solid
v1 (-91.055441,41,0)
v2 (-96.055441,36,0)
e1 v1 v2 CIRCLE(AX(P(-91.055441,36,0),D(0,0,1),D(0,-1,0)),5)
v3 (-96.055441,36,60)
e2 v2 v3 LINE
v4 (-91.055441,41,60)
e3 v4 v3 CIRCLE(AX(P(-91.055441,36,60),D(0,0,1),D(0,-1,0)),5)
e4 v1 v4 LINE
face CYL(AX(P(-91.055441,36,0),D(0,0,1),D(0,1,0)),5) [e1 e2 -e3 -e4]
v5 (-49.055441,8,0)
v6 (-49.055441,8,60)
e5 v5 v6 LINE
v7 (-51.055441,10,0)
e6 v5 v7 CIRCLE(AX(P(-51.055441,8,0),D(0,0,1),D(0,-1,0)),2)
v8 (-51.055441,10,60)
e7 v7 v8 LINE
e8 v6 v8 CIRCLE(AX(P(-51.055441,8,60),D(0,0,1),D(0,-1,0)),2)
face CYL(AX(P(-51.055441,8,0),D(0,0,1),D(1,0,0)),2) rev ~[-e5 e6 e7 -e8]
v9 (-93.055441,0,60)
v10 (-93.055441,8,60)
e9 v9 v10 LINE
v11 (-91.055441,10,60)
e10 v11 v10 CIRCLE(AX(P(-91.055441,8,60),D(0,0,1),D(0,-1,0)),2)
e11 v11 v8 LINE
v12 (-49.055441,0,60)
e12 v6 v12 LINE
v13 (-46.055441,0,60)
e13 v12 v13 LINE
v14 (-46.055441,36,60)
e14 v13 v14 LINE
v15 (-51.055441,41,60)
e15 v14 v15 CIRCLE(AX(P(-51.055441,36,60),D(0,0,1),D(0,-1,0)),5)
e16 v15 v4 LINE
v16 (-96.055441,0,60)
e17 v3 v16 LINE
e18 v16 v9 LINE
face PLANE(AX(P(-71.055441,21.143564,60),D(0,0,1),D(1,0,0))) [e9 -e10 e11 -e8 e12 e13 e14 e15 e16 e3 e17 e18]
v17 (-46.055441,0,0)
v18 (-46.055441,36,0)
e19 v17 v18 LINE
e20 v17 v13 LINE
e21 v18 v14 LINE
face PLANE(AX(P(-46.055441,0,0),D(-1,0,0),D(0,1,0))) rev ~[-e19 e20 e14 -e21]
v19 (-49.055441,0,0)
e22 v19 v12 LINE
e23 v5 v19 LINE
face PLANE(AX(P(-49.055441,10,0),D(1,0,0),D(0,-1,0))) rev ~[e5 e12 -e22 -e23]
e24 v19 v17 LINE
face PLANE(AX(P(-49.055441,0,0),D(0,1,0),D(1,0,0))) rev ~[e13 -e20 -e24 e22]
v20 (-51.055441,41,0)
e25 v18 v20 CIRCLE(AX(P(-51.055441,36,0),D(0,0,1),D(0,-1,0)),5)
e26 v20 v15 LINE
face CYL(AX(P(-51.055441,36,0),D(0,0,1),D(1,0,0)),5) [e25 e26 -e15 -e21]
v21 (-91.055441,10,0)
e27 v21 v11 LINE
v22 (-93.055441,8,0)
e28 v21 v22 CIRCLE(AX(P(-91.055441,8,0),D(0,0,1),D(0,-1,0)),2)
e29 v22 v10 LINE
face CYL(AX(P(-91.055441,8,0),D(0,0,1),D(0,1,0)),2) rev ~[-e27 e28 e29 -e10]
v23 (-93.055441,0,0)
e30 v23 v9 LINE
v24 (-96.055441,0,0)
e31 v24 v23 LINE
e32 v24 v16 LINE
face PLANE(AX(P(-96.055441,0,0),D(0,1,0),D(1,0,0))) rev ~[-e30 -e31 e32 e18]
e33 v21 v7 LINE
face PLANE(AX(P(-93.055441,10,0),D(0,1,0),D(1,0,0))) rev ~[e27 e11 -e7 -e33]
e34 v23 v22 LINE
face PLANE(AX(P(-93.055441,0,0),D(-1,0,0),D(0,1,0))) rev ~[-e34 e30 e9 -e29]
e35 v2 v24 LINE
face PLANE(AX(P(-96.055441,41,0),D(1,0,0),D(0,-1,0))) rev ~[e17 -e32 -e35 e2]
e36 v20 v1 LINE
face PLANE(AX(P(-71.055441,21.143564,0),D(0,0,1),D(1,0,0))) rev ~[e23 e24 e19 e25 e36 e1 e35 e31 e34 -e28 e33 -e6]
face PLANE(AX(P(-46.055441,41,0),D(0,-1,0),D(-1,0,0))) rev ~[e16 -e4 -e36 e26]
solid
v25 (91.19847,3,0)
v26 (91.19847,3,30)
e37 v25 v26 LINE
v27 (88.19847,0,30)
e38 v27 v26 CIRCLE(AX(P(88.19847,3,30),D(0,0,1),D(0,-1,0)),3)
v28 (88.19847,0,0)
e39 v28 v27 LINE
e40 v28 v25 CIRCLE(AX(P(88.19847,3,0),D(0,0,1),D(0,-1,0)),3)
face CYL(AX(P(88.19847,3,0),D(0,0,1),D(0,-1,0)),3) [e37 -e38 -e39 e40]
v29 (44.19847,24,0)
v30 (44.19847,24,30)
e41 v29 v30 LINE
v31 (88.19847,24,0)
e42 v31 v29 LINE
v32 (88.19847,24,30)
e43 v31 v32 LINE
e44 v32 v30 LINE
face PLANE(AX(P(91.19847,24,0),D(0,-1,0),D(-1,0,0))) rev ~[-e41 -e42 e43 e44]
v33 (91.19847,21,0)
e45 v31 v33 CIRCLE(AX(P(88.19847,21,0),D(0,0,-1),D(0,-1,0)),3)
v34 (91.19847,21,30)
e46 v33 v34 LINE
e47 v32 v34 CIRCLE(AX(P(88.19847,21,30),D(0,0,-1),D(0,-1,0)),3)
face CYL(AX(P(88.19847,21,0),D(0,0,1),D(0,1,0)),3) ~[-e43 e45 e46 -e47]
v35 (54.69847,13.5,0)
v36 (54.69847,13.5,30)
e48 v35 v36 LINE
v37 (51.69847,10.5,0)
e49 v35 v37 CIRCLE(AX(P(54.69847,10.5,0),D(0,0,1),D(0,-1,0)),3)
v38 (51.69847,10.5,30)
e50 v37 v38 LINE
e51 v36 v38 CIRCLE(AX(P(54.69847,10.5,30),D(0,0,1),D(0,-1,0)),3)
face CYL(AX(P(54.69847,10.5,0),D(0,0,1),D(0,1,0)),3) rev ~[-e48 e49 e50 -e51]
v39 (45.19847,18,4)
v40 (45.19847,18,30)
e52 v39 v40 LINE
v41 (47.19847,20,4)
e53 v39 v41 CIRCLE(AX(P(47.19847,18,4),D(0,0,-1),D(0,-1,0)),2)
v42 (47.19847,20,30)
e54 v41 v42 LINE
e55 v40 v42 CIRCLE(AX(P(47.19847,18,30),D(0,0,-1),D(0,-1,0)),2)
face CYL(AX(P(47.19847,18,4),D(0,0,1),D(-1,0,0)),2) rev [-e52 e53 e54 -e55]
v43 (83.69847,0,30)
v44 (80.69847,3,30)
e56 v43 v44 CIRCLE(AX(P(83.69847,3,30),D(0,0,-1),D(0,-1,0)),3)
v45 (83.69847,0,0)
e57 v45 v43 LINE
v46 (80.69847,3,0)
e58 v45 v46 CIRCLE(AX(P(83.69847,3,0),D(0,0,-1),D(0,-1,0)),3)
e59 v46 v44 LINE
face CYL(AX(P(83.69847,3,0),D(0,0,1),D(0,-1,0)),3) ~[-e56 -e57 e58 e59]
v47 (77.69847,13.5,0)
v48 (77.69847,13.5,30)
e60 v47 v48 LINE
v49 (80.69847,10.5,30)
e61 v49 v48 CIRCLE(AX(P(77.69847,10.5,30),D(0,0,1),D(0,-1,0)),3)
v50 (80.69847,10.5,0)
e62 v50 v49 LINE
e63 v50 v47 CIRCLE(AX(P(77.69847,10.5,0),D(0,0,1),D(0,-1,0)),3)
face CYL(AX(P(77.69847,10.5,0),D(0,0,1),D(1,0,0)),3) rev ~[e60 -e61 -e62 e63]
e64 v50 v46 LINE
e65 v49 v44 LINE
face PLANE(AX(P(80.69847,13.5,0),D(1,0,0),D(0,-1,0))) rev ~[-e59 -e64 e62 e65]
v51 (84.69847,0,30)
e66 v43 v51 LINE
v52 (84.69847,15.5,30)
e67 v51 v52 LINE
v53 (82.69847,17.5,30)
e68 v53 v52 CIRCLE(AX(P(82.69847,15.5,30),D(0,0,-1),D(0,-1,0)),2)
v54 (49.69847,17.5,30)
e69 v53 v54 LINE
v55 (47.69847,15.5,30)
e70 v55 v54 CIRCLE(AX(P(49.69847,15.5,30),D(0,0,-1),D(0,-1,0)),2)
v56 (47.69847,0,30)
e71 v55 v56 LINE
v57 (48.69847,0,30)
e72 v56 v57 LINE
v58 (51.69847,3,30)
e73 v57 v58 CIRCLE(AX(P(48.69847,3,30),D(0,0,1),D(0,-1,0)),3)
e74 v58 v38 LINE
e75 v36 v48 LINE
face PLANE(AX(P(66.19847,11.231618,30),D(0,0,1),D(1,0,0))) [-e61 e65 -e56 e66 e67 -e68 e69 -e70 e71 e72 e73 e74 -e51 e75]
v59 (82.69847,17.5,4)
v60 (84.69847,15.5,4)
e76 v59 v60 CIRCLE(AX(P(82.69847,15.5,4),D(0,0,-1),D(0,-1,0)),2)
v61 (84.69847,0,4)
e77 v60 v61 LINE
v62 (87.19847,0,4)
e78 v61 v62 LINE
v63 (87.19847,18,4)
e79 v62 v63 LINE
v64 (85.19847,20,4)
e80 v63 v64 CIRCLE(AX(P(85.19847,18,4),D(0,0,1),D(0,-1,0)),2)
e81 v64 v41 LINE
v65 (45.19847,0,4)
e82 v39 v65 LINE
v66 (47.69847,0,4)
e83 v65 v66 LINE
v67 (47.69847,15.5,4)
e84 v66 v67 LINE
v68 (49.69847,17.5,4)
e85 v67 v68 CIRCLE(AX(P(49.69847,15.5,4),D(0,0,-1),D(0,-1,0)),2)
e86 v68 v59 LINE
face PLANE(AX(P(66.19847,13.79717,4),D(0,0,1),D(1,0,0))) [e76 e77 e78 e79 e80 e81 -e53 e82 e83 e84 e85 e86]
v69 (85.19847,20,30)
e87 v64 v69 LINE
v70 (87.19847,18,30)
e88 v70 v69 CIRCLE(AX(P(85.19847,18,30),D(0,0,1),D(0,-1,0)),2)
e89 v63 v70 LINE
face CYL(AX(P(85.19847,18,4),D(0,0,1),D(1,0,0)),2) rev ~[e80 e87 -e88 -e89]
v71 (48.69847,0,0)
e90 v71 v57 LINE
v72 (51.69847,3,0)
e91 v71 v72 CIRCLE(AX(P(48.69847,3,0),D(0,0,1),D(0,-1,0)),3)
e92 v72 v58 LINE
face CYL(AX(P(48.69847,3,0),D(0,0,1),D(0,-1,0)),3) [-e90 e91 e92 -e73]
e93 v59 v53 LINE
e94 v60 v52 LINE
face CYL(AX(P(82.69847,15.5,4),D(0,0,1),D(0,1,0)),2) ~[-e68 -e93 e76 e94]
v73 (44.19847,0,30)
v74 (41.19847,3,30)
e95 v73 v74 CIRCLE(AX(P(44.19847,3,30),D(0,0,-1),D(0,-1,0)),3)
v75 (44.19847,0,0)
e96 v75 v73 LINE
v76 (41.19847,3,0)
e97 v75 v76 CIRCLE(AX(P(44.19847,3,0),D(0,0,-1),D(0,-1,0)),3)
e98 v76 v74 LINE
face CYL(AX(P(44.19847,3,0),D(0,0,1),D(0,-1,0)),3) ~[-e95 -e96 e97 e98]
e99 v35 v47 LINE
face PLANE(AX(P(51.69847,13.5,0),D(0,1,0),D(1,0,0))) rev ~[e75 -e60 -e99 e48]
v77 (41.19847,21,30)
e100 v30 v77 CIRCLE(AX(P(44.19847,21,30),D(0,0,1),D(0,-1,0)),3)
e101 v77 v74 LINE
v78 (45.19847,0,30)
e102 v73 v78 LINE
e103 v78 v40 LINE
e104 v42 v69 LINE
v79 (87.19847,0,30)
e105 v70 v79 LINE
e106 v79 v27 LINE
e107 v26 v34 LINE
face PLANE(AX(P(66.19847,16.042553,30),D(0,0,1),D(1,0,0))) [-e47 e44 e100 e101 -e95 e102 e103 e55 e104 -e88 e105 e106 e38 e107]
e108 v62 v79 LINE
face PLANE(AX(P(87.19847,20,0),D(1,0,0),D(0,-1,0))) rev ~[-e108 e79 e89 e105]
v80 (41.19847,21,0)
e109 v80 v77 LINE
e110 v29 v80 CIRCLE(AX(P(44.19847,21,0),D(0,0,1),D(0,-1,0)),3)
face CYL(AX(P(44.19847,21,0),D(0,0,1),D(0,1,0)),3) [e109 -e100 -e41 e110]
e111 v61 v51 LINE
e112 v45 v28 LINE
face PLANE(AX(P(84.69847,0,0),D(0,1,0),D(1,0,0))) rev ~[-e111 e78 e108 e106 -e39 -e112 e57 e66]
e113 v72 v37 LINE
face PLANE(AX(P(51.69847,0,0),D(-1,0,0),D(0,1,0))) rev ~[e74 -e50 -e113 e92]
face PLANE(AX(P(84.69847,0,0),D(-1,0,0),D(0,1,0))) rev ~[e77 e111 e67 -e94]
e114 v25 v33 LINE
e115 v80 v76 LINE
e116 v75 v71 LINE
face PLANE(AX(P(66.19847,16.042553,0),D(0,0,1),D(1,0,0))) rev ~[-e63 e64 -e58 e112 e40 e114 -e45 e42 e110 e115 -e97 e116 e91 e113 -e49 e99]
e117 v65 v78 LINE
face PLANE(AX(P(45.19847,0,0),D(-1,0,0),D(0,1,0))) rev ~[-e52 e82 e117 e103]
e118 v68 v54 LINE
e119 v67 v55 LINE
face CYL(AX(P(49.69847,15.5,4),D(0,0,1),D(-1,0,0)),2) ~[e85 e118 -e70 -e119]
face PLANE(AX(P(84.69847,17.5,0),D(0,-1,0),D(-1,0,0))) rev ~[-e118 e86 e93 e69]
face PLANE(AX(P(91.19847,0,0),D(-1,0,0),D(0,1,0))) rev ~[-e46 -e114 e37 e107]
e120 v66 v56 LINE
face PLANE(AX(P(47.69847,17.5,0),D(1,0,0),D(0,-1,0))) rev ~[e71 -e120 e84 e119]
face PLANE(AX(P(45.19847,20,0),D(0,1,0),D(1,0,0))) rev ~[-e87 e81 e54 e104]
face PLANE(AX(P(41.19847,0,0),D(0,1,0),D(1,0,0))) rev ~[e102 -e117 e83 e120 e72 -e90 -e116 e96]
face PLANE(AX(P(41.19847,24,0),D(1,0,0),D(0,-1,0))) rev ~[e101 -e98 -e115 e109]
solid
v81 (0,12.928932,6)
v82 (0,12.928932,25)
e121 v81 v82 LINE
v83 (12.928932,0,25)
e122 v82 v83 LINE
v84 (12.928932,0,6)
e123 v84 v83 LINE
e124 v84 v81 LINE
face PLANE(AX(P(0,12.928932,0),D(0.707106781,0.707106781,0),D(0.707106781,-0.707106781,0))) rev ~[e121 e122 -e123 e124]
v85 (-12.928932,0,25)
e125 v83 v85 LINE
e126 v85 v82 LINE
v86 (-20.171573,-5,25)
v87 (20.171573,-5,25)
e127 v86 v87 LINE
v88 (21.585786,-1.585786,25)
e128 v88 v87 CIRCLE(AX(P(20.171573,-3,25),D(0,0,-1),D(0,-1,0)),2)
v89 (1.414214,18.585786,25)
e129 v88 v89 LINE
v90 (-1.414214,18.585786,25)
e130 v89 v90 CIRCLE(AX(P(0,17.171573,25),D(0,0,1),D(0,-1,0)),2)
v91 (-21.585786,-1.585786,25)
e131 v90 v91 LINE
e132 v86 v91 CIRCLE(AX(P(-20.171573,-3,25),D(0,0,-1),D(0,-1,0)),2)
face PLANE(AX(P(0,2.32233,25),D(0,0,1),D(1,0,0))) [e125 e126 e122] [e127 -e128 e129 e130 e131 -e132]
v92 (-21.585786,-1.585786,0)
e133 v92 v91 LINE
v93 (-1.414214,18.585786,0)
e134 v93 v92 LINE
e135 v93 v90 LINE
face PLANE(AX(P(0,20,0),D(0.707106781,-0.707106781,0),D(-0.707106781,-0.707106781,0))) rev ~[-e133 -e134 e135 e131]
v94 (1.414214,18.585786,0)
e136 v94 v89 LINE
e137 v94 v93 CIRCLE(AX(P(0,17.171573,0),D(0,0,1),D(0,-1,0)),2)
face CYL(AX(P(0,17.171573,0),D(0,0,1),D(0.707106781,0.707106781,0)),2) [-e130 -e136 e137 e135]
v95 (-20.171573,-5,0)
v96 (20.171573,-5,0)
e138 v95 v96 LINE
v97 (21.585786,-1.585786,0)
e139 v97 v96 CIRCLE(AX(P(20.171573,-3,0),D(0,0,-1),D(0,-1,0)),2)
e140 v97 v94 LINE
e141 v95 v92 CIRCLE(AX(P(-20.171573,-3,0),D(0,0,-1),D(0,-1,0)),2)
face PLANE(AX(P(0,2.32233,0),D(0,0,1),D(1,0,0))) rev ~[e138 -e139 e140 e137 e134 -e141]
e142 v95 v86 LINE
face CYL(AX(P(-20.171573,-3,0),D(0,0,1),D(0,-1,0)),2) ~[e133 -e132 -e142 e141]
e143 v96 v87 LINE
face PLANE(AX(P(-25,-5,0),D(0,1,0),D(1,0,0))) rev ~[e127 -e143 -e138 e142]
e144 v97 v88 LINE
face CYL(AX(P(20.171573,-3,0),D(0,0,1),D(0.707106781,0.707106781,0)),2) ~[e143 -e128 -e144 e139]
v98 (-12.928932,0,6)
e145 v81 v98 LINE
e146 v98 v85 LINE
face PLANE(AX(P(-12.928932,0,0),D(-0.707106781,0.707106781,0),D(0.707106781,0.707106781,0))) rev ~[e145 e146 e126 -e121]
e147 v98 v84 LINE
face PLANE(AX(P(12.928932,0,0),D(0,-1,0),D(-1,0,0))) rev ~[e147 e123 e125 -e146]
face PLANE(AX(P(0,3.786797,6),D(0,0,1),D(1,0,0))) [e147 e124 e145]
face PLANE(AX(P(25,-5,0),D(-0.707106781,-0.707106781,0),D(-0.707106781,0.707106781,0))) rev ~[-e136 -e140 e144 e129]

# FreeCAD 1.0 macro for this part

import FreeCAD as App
import Part
import Sketcher

V = App.Vector


def edges_at(feature, points):
    """Names of the edges that pass closest to the given points."""
    edges = feature.Shape.Edges
    near = lambda p: min(range(len(edges)), key=lambda i: edges[i].distToShape(Part.Vertex(*p))[0])
    return sorted({f"Edge{near(p) + 1}" for p in points})


def add_polygon(sketch, points):
    """Adds a closed chain of lines whose ends are joined by coincident constraints."""
    first, n = sketch.GeometryCount, len(points)
    for a, b in zip(points, points[1:] + points[:1]):
        sketch.addGeometry(Part.LineSegment(App.Vector(*a, 0), App.Vector(*b, 0)), False)
    for i in range(n):
        sketch.addConstraint(Sketcher.Constraint("Coincident", first + i, 2, first + (i + 1) % n, 1))

doc = App.newDocument("Part")
params = doc.addObject("Spreadsheet::Sheet", "Params")
for row, (alias, value) in enumerate([
    ("pad1_length", "6 mm"),
    ("sketch2_width", "50 mm"),
    ("pad2_length", "25 mm"),
    ("fillet_radius", "2 mm"),
    ("sketch3_width", "3 mm"),
    ("sketch3_width2", "50 mm"),
    ("sketch3_height", "41 mm"),
    ("sketch3_height2", "10 mm"),
    ("pad3_length", "60 mm"),
    ("fillet2_radius", "5 mm"),
    ("fillet3_radius", "2 mm"),
    ("sketch4_width", "42 mm"),
    ("sketch4_width2", "37 mm"),
    ("sketch4_height", "20 mm"),
    ("sketch4_height2", "17.5 mm"),
    ("pad4_length", "4 mm"),
    ("sketch5_width", "42 mm"),
    ("sketch5_width2", "4 mm"),
    ("sketch5_width3", "29 mm"),
    ("sketch5_height", "20 mm"),
    ("sketch5_height2", "24 mm"),
    ("pad5_length", "30 mm"),
    ("fillet4_radius", "3 mm"),
    ("fillet5_radius", "2 mm"),
], start=1):
    params.set(f"A{row}", alias)
    params.set(f"B{row}", "=" + value)
    params.setAlias(f"B{row}", alias)

body = doc.addObject("PartDesign::Body", "Body")

sketch1 = body.newObject("Sketcher::SketchObject", "Sketch")
sketch1.AttachmentSupport = (doc.getObject("XY_Plane"), [""])
sketch1.MapMode = "FlatFace"
add_polygon(sketch1, [(13, 0), (0, 13), (-13, 0)])
sketch1.addConstraint(Sketcher.Constraint("Horizontal", 2))
sketch1.addConstraint(Sketcher.Constraint("Symmetric", 1, 2, 2, 2, -1, 1))
sketch1.addConstraint(Sketcher.Constraint("PointOnObject", 0, 2, -2))
sketch1.addConstraint(Sketcher.Constraint("Perpendicular", 0, 1))
sketch1.addConstraint(Sketcher.Constraint("Distance", 0, 18.284271))
pad1 = body.newObject("PartDesign::Pad", "Pad")
pad1.Profile = sketch1
pad1.setExpression("Length", "Params.pad1_length")

sketch2 = body.newObject("Sketcher::SketchObject", "Sketch001")
sketch2.AttachmentSupport = (doc.getObject("XY_Plane"), [""])
sketch2.MapMode = "FlatFace"
add_polygon(sketch2, [(25, -5), (0, 20), (-25, -5)])
add_polygon(sketch2, [(13, 0), (-13, 0), (0, 13)])
sketch2.addConstraint(Sketcher.Constraint("Horizontal", 2))
sketch2.addConstraint(Sketcher.Constraint("Horizontal", 3))
sketch2.addConstraint(Sketcher.Constraint("Symmetric", 3, 2, 5, 2, -1, 1))
sketch2.addConstraint(Sketcher.Constraint("PointOnObject", 0, 2, -2))
sketch2.addConstraint(Sketcher.Constraint("PointOnObject", 4, 2, -2))
sketch2.addConstraint(Sketcher.Constraint("Perpendicular", 0, 1))
sketch2.addConstraint(Sketcher.Constraint("Parallel", 1, 4))
sketch2.addConstraint(Sketcher.Constraint("Perpendicular", 4, 5))
sketch2.addConstraint(Sketcher.Constraint("DistanceX", 2, 1, 2, 2, 50.0))
sketch2.addConstraint(Sketcher.Constraint("DistanceY", -1, 1, 0, 2, 20.0))
sketch2.addConstraint(Sketcher.Constraint("Distance", 4, 18.284271))
sketch2.setExpression("Constraints[14]", "Params.sketch2_width")
pad2 = body.newObject("PartDesign::Pad", "Pad001")
pad2.Profile = sketch2
pad2.setExpression("Length", "Params.pad2_length")
doc.recompute()

fillet = body.newObject("PartDesign::Fillet", "Fillet")
fillet.Base = (pad2, edges_at(pad2, [(-25, -5, 12.5), (25, -5, 12.5), (0, 20, 12.5)]))
fillet.setExpression("Radius", "Params.fillet_radius")
body2 = doc.addObject("PartDesign::Body", "Body001")

sketch3 = body2.newObject("Sketcher::SketchObject", "Sketch002")
sketch3.AttachmentSupport = (doc.getObject("XY_Plane001"), [""])
sketch3.MapMode = "FlatFace"
add_polygon(sketch3, [(-49.1, 0), (-46.1, 0), (-46.1, 41), (-96.1, 41), (-96.1, 0), (-93.1, 0), (-93.1, 10), (-49.1, 10)])
sketch3.addConstraint(Sketcher.Constraint("Horizontal", 0))
sketch3.addConstraint(Sketcher.Constraint("Vertical", 1))
sketch3.addConstraint(Sketcher.Constraint("Horizontal", 2))
sketch3.addConstraint(Sketcher.Constraint("Vertical", 3))
sketch3.addConstraint(Sketcher.Constraint("Horizontal", 4))
sketch3.addConstraint(Sketcher.Constraint("Vertical", 5))
sketch3.addConstraint(Sketcher.Constraint("Horizontal", 6))
sketch3.addConstraint(Sketcher.Constraint("Vertical", 7))
sketch3.addConstraint(Sketcher.Constraint("PointOnObject", 0, 2, -1))
sketch3.addConstraint(Sketcher.Constraint("PointOnObject", 3, 2, -1))
sketch3.addConstraint(Sketcher.Constraint("Equal", 0, 4))
sketch3.addConstraint(Sketcher.Constraint("DistanceX", 0, 1, 0, 2, 3.0))
sketch3.addConstraint(Sketcher.Constraint("DistanceX", 2, 2, 2, 1, 50.0))
sketch3.addConstraint(Sketcher.Constraint("DistanceY", 1, 1, 1, 2, 41.0))
sketch3.addConstraint(Sketcher.Constraint("DistanceY", 5, 1, 5, 2, 10.0))
sketch3.addConstraint(Sketcher.Constraint("DistanceX", 0, 2, -1, 1, 46.055441))
sketch3.setExpression("Constraints[19]", "Params.sketch3_width")
sketch3.setExpression("Constraints[20]", "Params.sketch3_width2")
sketch3.setExpression("Constraints[21]", "Params.sketch3_height")
sketch3.setExpression("Constraints[22]", "Params.sketch3_height2")
pad3 = body2.newObject("PartDesign::Pad", "Pad002")
pad3.Profile = sketch3
pad3.setExpression("Length", "Params.pad3_length")
doc.recompute()

fillet2 = body2.newObject("PartDesign::Fillet", "Fillet001")
fillet2.Base = (pad3, edges_at(pad3, [(-96.055, 41, 30), (-46.055, 41, 30)]))
fillet2.setExpression("Radius", "Params.fillet2_radius")
doc.recompute()

fillet3 = body2.newObject("PartDesign::Fillet", "Fillet002")
fillet3.Base = (fillet2, edges_at(fillet2, [(-93.055, 10, 30), (-49.055, 10, 30)]))
fillet3.setExpression("Radius", "Params.fillet3_radius")
body3 = doc.addObject("PartDesign::Body", "Body002")

sketch4 = body3.newObject("Sketcher::SketchObject", "Sketch003")
sketch4.AttachmentSupport = (doc.getObject("XY_Plane002"), [""])
sketch4.MapMode = "FlatFace"
add_polygon(sketch4, [(87.2, 20), (45.2, 20), (45.2, 0), (47.7, 0), (47.7, 17.5), (84.7, 17.5), (84.7, 0), (87.2, 0)])
sketch4.addConstraint(Sketcher.Constraint("Horizontal", 0))
sketch4.addConstraint(Sketcher.Constraint("Vertical", 1))
sketch4.addConstraint(Sketcher.Constraint("Horizontal", 2))
sketch4.addConstraint(Sketcher.Constraint("Vertical", 3))
sketch4.addConstraint(Sketcher.Constraint("Horizontal", 4))
sketch4.addConstraint(Sketcher.Constraint("Vertical", 5))
sketch4.addConstraint(Sketcher.Constraint("Horizontal", 6))
sketch4.addConstraint(Sketcher.Constraint("Vertical", 7))
sketch4.addConstraint(Sketcher.Constraint("PointOnObject", 1, 2, -1))
sketch4.addConstraint(Sketcher.Constraint("PointOnObject", 5, 2, -1))
sketch4.addConstraint(Sketcher.Constraint("Equal", 2, 6))
sketch4.addConstraint(Sketcher.Constraint("DistanceX", 0, 2, 0, 1, 42.0))
sketch4.addConstraint(Sketcher.Constraint("DistanceX", 4, 1, 4, 2, 37.0))
sketch4.addConstraint(Sketcher.Constraint("DistanceY", 1, 2, 1, 1, 20.0))
sketch4.addConstraint(Sketcher.Constraint("DistanceY", 3, 1, 3, 2, 17.5))
sketch4.addConstraint(Sketcher.Constraint("DistanceX", -1, 1, 0, 2, 45.19847))
sketch4.setExpression("Constraints[19]", "Params.sketch4_width")
sketch4.setExpression("Constraints[20]", "Params.sketch4_width2")
sketch4.setExpression("Constraints[21]", "Params.sketch4_height")
sketch4.setExpression("Constraints[22]", "Params.sketch4_height2")
pad4 = body3.newObject("PartDesign::Pad", "Pad003")
pad4.Profile = sketch4
pad4.setExpression("Length", "Params.pad4_length")

sketch5 = body3.newObject("Sketcher::SketchObject", "Sketch004")
sketch5.AttachmentSupport = (doc.getObject("XY_Plane002"), [""])
sketch5.MapMode = "FlatFace"
add_polygon(sketch5, [(45.2, 0), (45.2, 20), (87.2, 20), (87.2, 0), (91.2, 0), (91.2, 24), (41.2, 24), (41.2, 0)])
add_polygon(sketch5, [(47.7, 17.5), (47.7, 0), (51.7, 0), (51.7, 13.5), (80.7, 13.5), (80.7, 0), (84.7, 0), (84.7, 17.5)])
sketch5.addConstraint(Sketcher.Constraint("Vertical", 0))
sketch5.addConstraint(Sketcher.Constraint("Horizontal", 1))
sketch5.addConstraint(Sketcher.Constraint("Vertical", 2))
sketch5.addConstraint(Sketcher.Constraint("Horizontal", 3))
sketch5.addConstraint(Sketcher.Constraint("Vertical", 4))
sketch5.addConstraint(Sketcher.Constraint("Horizontal", 5))
sketch5.addConstraint(Sketcher.Constraint("Vertical", 6))
sketch5.addConstraint(Sketcher.Constraint("Horizontal", 7))
sketch5.addConstraint(Sketcher.Constraint("Vertical", 8))
sketch5.addConstraint(Sketcher.Constraint("Horizontal", 9))
sketch5.addConstraint(Sketcher.Constraint("Vertical", 10))
sketch5.addConstraint(Sketcher.Constraint("Horizontal", 11))
sketch5.addConstraint(Sketcher.Constraint("Vertical", 12))
sketch5.addConstraint(Sketcher.Constraint("Horizontal", 13))
sketch5.addConstraint(Sketcher.Constraint("Vertical", 14))
sketch5.addConstraint(Sketcher.Constraint("Horizontal", 15))
sketch5.addConstraint(Sketcher.Constraint("PointOnObject", 2, 2, -1))
sketch5.addConstraint(Sketcher.Constraint("PointOnObject", 6, 2, -1))
sketch5.addConstraint(Sketcher.Constraint("PointOnObject", 8, 2, -1))
sketch5.addConstraint(Sketcher.Constraint("PointOnObject", 12, 2, -1))
sketch5.addConstraint(Sketcher.Constraint("Equal", 3, 7))
sketch5.addConstraint(Sketcher.Constraint("Equal", 7, 9))
sketch5.addConstraint(Sketcher.Constraint("Equal", 9, 13))
sketch5.addConstraint(Sketcher.Constraint("DistanceX", 1, 1, 1, 2, 42.0))
sketch5.addConstraint(Sketcher.Constraint("DistanceX", 3, 1, 3, 2, 4.0))
sketch5.addConstraint(Sketcher.Constraint("DistanceX", 11, 1, 11, 2, 29.0))
sketch5.addConstraint(Sketcher.Constraint("DistanceY", 0, 1, 0, 2, 20.0))
sketch5.addConstraint(Sketcher.Constraint("DistanceY", 4, 1, 4, 2, 24.0))
sketch5.addConstraint(Sketcher.Constraint("DistanceY", 8, 2, 8, 1, 17.5))
sketch5.addConstraint(Sketcher.Constraint("DistanceY", 10, 1, 10, 2, 13.5))
sketch5.addConstraint(Sketcher.Constraint("DistanceX", 7, 2, 8, 2, 2.5))
sketch5.addConstraint(Sketcher.Constraint("DistanceX", -1, 1, 0, 2, 45.19847))
sketch5.setExpression("Constraints[39]", "Params.sketch5_width")
sketch5.setExpression("Constraints[40]", "Params.sketch5_width2")
sketch5.setExpression("Constraints[41]", "Params.sketch5_width3")
sketch5.setExpression("Constraints[42]", "Params.sketch5_height")
sketch5.setExpression("Constraints[43]", "Params.sketch5_height2")
pad5 = body3.newObject("PartDesign::Pad", "Pad004")
pad5.Profile = sketch5
pad5.setExpression("Length", "Params.pad5_length")
doc.recompute()

fillet4 = body3.newObject("PartDesign::Fillet", "Fillet003")
fillet4.Base = (pad5, edges_at(pad5, [
    (91.198, 24, 15),
    (41.198, 24, 15),
    (51.698, 13.5, 15),
    (80.698, 13.5, 15),
    (41.198, 0, 15),
    (51.698, 0, 15),
    (80.698, 0, 15),
    (91.198, 0, 15),
]))
fillet4.setExpression("Radius", "Params.fillet4_radius")
doc.recompute()

fillet5 = body3.newObject("PartDesign::Fillet", "Fillet004")
fillet5.Base = (fillet4, edges_at(fillet4, [
    (45.198, 20, 17),
    (47.698, 17.5, 17),
    (87.198, 20, 17),
    (84.698, 17.5, 17),
]))
fillet5.setExpression("Radius", "Params.fillet5_radius")

doc.recompute()
